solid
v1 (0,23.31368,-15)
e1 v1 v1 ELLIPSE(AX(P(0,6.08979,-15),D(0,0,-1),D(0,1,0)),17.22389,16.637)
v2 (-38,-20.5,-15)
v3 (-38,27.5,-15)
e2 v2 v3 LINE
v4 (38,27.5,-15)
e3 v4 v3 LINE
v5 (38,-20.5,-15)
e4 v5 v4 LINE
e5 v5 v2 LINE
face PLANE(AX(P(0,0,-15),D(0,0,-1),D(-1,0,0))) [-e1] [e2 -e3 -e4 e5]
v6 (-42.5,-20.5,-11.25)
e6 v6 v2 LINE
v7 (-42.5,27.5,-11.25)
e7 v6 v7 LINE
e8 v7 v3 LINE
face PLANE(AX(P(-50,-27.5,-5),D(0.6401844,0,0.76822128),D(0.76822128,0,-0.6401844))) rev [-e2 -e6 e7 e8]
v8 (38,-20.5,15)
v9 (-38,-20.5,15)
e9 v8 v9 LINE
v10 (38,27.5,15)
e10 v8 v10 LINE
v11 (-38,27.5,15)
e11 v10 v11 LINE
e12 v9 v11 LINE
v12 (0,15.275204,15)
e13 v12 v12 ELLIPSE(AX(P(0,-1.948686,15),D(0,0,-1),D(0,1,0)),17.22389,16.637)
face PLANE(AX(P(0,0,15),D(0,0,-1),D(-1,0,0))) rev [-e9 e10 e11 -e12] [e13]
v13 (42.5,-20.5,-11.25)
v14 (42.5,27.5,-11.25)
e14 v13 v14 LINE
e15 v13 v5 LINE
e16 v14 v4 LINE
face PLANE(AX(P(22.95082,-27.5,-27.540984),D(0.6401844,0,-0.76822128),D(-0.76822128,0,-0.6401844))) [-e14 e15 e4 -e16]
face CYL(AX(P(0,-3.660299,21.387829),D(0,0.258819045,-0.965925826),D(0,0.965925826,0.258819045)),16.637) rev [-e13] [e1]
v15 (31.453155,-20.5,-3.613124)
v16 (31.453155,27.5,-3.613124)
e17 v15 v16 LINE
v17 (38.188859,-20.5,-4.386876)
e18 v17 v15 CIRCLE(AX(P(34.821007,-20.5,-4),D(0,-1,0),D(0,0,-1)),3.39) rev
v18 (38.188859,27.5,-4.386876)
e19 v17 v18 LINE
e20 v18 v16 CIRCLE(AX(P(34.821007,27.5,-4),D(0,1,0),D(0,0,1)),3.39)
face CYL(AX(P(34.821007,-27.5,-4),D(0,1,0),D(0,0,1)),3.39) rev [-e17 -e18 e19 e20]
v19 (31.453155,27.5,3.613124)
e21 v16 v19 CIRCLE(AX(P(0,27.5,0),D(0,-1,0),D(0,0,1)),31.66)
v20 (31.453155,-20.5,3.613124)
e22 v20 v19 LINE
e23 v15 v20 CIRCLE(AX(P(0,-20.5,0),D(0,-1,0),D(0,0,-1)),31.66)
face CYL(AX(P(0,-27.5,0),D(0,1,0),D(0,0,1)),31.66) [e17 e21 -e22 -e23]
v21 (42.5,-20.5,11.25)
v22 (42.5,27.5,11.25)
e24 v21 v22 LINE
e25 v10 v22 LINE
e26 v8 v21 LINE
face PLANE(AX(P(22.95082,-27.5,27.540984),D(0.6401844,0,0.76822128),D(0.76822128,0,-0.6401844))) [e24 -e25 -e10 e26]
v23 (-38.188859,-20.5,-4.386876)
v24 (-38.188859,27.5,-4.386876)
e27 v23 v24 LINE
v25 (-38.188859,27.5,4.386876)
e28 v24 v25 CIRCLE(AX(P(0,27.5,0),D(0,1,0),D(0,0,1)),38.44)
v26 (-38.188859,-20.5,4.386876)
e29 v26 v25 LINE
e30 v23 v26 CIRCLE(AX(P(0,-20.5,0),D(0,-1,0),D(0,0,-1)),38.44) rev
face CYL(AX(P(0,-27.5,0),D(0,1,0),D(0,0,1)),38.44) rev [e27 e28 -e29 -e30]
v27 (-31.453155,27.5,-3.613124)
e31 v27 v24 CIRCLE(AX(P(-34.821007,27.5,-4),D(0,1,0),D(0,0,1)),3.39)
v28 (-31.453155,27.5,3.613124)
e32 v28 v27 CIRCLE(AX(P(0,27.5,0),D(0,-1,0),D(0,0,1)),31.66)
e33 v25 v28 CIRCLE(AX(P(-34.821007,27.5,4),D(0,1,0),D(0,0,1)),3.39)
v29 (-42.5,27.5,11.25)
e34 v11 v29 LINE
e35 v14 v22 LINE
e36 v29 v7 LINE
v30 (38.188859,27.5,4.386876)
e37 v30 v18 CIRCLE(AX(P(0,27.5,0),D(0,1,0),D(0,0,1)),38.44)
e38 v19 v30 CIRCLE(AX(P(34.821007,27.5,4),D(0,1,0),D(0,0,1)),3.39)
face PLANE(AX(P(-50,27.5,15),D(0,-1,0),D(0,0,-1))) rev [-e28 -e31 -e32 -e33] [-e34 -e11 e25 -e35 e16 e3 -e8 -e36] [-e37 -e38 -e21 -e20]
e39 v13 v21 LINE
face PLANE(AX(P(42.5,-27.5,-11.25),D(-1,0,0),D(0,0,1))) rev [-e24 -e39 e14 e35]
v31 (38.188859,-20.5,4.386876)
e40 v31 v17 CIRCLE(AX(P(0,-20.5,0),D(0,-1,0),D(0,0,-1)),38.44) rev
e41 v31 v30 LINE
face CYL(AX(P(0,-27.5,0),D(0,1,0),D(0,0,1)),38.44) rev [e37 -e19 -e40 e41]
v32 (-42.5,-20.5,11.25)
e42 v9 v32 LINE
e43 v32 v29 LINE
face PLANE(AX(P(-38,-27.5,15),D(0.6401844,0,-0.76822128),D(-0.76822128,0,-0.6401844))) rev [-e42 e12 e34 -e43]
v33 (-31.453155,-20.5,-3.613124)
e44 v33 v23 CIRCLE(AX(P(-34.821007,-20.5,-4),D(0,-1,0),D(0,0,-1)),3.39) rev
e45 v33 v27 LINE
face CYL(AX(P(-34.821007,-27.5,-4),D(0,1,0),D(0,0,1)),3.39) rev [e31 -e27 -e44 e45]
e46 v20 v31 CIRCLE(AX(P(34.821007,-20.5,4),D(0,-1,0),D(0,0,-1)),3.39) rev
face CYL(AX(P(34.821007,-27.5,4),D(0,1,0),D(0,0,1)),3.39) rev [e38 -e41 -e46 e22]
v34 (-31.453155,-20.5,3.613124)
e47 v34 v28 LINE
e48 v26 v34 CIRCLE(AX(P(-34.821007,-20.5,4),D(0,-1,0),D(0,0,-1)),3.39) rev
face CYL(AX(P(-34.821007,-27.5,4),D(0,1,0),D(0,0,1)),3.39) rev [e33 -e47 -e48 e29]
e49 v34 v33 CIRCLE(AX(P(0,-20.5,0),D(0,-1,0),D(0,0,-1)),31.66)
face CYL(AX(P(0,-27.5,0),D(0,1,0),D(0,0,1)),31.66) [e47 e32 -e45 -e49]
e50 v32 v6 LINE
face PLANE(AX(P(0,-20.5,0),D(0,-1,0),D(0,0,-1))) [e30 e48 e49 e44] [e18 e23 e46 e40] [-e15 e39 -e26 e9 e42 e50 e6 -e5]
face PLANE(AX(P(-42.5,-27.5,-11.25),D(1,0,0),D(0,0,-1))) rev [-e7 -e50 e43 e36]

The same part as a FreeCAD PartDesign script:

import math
import FreeCAD as App
import Part
import Sketcher
Q = App.Units.Quantity


def add_polygon(sketch, points):
    """Adds a closed chain of lines whose ends are joined by coincident constraints."""
    first, n = sketch.GeometryCount, len(points)
    for a, b in zip(points, points[1:] + points[:1]):
        sketch.addGeometry(Part.LineSegment(App.Vector(*a, 0), App.Vector(*b, 0)), False)
    for i in range(n):
        sketch.addConstraint(Sketcher.Constraint("Coincident", first + i, 2, first + (i + 1) % n, 1))

doc = App.newDocument("Part")
body = doc.addObject("PartDesign::Body", "Body")

sketch1 = body.newObject("Sketcher::SketchObject", "Sketch")
sketch1.AttachmentSupport = (doc.getObject("XY_Plane"), [""])
sketch1.MapMode = "FlatFace"
add_polygon(sketch1, [(-50, 27.5), (-50, -27.5), (50, -27.5), (50, 27.5)])
sketch1.addConstraint([
    Sketcher.Constraint("Vertical", 0),
    Sketcher.Constraint("Horizontal", 1),
    Sketcher.Constraint("Vertical", 2),
    Sketcher.Constraint("Horizontal", 3),
    Sketcher.Constraint("Symmetric", 0, 2, 2, 2, -1, 1),
    Sketcher.Constraint("DistanceX", 1, 1, 1, 2, Q("100 mm")),
    Sketcher.Constraint("DistanceY", 0, 2, 0, 1, Q("55 mm")),
])
pad1 = body.newObject("PartDesign::Pad", "Pad")
pad1.Profile = sketch1
pad1.Length = 30
pad1.Midplane = True

sketch2 = body.newObject("Sketcher::SketchObject", "Sketch001")
sketch2.AttachmentSupport = (doc.getObject("XZ_Plane"), [""])
sketch2.MapMode = "FlatFace"
sketch2.AttachmentOffset = App.Placement(App.Vector(0, 0, -27.5), App.Rotation())
sketch2.addGeometry([
    Part.ArcOfCircle(Part.Circle(App.Vector(0, 0, 0), App.Vector(0, 0, 1), 38.44), math.radians(173.446975), math.radians(186.553025)),
    Part.ArcOfCircle(Part.Circle(App.Vector(-34.821007, 4, 0), App.Vector(0, 0, 1), 3.39), math.radians(-6.553025), math.radians(173.446975)),
    Part.ArcOfCircle(Part.Circle(App.Vector(0, 0, 0), App.Vector(0, 0, 1), 31.66), math.radians(173.446975), math.radians(186.553025)),
    Part.ArcOfCircle(Part.Circle(App.Vector(-34.821007, -4, 0), App.Vector(0, 0, 1), 3.39), math.radians(-173.446975), math.radians(6.553025)),
    Part.ArcOfCircle(Part.Circle(App.Vector(0, 0, 0), App.Vector(0, 0, 1), 38.44), math.radians(-6.553025), math.radians(6.553025)),
    Part.ArcOfCircle(Part.Circle(App.Vector(34.821007, -4, 0), App.Vector(0, 0, 1), 3.39), math.radians(173.446975), math.radians(353.446975)),
    Part.ArcOfCircle(Part.Circle(App.Vector(0, 0, 0), App.Vector(0, 0, 1), 31.66), math.radians(-6.553025), math.radians(6.553025)),
    Part.ArcOfCircle(Part.Circle(App.Vector(34.821007, 4, 0), App.Vector(0, 0, 1), 3.39), math.radians(6.553025), math.radians(186.553025)),
], False)
sketch2.addConstraint([
    Sketcher.Constraint("Tangent", 0, 1, 1, 2),
    Sketcher.Constraint("Tangent", 1, 1, 2, 1),
    Sketcher.Constraint("Tangent", 2, 2, 3, 2),
    Sketcher.Constraint("Tangent", 3, 1, 0, 2),
    Sketcher.Constraint("Tangent", 4, 1, 5, 2),
    Sketcher.Constraint("Tangent", 5, 1, 6, 1),
    Sketcher.Constraint("Tangent", 6, 2, 7, 2),
    Sketcher.Constraint("Tangent", 7, 1, 4, 2),
    Sketcher.Constraint("Coincident", 0, 3, -1, 1),
    Sketcher.Constraint("Coincident", 2, 3, -1, 1),
    Sketcher.Constraint("Coincident", 4, 3, -1, 1),
    Sketcher.Constraint("Coincident", 6, 3, -1, 1),
    Sketcher.Constraint("Equal", 0, 4),
    Sketcher.Constraint("Equal", 3, 5),
    Sketcher.Constraint("Horizontal", 3, 3, 5, 3),
    Sketcher.Constraint("Horizontal", 1, 3, 7, 3),
    Sketcher.Constraint("Vertical", 1, 3, 3, 3),
    Sketcher.Constraint("Radius", 0, Q("38.44 mm")),
    Sketcher.Constraint("Radius", 1, Q("3.39 mm")),
    Sketcher.Constraint("DistanceY", -1, 1, 1, 3, Q("4 mm")),
])
pocket1 = body.newObject("PartDesign::Pocket", "Pocket")
pocket1.Profile = sketch2
pocket1.Type = "ThroughAll"
pocket1.Reversed = True

sketch3 = body.newObject("Sketcher::SketchObject", "Sketch002")
sketch3.Placement = App.Placement(App.Vector(0, 5.592151, -20.870191), App.Rotation(App.Vector(-1, 0, 0), App.Vector(0, 0.965925826, 0.258819045), App.Vector(0, 0.258819045, -0.965925826), "ZXY"))
sketch3.addGeometry(Part.Circle(App.Vector(0, 2, 0), App.Vector(0, 0, 1), 16.637), False)
sketch3.addConstraint([
    Sketcher.Constraint("PointOnObject", 0, 3, -2),
    Sketcher.Constraint("Diameter", 0, Q("33.274 mm")),
    Sketcher.Constraint("DistanceY", -1, 1, 0, 3, Q("2 mm")),
])
pocket2 = body.newObject("PartDesign::Pocket", "Pocket001")
pocket2.Profile = sketch3
pocket2.Type = "ThroughAll"

sketch4 = body.newObject("Sketcher::SketchObject", "Sketch003")
sketch4.AttachmentSupport = (doc.getObject("XZ_Plane"), [""])
sketch4.MapMode = "FlatFace"
sketch4.AttachmentOffset = App.Placement(App.Vector(0, 0, -27.5), App.Rotation())
add_polygon(sketch4, [(50, -5), (50, -15), (38, -15)])
add_polygon(sketch4, [(50, 15), (50, 5), (38, 15)])
add_polygon(sketch4, [(-38, 15), (-50, 5), (-50, 15)])
add_polygon(sketch4, [(-50, -5), (-38, -15), (-50, -15)])
sketch4.addConstraint([
    Sketcher.Constraint("Vertical", 0),
    Sketcher.Constraint("Horizontal", 1),
    Sketcher.Constraint("Vertical", 3),
    Sketcher.Constraint("Horizontal", 5),
    Sketcher.Constraint("Vertical", 7),
    Sketcher.Constraint("Horizontal", 8),
    Sketcher.Constraint("Horizontal", 10),
    Sketcher.Constraint("Vertical", 11),
    Sketcher.Constraint("Symmetric", 2, 2, 6, 2, -1, 1),
    Sketcher.Constraint("Symmetric", 1, 2, 8, 2, -1, 1),
    Sketcher.Constraint("Symmetric", 4, 2, 9, 2, -1, 1),
    Sketcher.Constraint("Symmetric", 3, 2, 11, 2, -1, 1),
    Sketcher.Constraint("Symmetric", 3, 2, 6, 2, -2),
    Sketcher.Constraint("Symmetric", 4, 2, 8, 2, -2),
    Sketcher.Constraint("DistanceX", 1, 2, 1, 1, Q("12 mm")),
    Sketcher.Constraint("DistanceY", 0, 2, 0, 1, Q("10 mm")),
    Sketcher.Constraint("DistanceX", -1, 1, 0, 2, Q("50 mm")),
    Sketcher.Constraint("DistanceY", 0, 2, -1, 1, Q("15 mm")),
])
pocket3 = body.newObject("PartDesign::Pocket", "Pocket002")
pocket3.Profile = sketch4
pocket3.Type = "ThroughAll"
pocket3.Reversed = True

sketch5 = body.newObject("Sketcher::SketchObject", "Sketch004")
sketch5.AttachmentSupport = (doc.getObject("XZ_Plane"), [""])
sketch5.MapMode = "FlatFace"
sketch5.AttachmentOffset = App.Placement(App.Vector(0, 0, -27.5), App.Rotation())
add_polygon(sketch5, [(-42.5, 11.25), (-42.5, -11.25), (-50, -5), (-50, 5)])
add_polygon(sketch5, [(42.5, -11.25), (42.5, 11.25), (50, 5), (50, -5)])
sketch5.addConstraint([
    Sketcher.Constraint("Vertical", 0),
    Sketcher.Constraint("Vertical", 2),
    Sketcher.Constraint("Vertical", 4),
    Sketcher.Constraint("Vertical", 6),
    Sketcher.Constraint("Symmetric", 0, 2, 4, 2, -1, 1),
    Sketcher.Constraint("Symmetric", 1, 2, 5, 2, -1, 1),
    Sketcher.Constraint("Parallel", 3, 7),
    Sketcher.Constraint("Horizontal", 3, 2, 4, 2),
    Sketcher.Constraint("Horizontal", 2, 2, 5, 2),
    Sketcher.Constraint("Horizontal", 1, 2, 6, 2),
    Sketcher.Constraint("DistanceY", 2, 1, 2, 2, Q("10 mm")),
    Sketcher.Constraint("DistanceY", 0, 2, 0, 1, Q("22.5 mm")),
    Sketcher.Constraint("DistanceX", 1, 2, -1, 1, Q("50 mm")),
    Sketcher.Constraint("DistanceX", 3, 2, 4, 2, Q("85 mm")),
])
pocket4 = body.newObject("PartDesign::Pocket", "Pocket003")
pocket4.Profile = sketch5
pocket4.Type = "ThroughAll"
pocket4.Reversed = True

sketch6 = body.newObject("Sketcher::SketchObject", "Sketch005")
sketch6.AttachmentSupport = (doc.getObject("XZ_Plane"), [""])
sketch6.MapMode = "FlatFace"
sketch6.AttachmentOffset = App.Placement(App.Vector(0, 0, 27.5), App.Rotation())
add_polygon(sketch6, [(-45.5, 17.5), (-45.5, -17.5), (45.5, -17.5), (45.5, 17.5)])
sketch6.addConstraint([
    Sketcher.Constraint("Vertical", 0),
    Sketcher.Constraint("Horizontal", 1),
    Sketcher.Constraint("Vertical", 2),
    Sketcher.Constraint("Horizontal", 3),
    Sketcher.Constraint("Symmetric", 0, 2, 2, 2, -1, 1),
    Sketcher.Constraint("DistanceX", 1, 1, 1, 2, Q("91 mm")),
    Sketcher.Constraint("DistanceY", 0, 2, 0, 1, Q("35 mm")),
])
pocket5 = body.newObject("PartDesign::Pocket", "Pocket004")
pocket5.Profile = sketch6
pocket5.Length = 7

doc.recompute()
